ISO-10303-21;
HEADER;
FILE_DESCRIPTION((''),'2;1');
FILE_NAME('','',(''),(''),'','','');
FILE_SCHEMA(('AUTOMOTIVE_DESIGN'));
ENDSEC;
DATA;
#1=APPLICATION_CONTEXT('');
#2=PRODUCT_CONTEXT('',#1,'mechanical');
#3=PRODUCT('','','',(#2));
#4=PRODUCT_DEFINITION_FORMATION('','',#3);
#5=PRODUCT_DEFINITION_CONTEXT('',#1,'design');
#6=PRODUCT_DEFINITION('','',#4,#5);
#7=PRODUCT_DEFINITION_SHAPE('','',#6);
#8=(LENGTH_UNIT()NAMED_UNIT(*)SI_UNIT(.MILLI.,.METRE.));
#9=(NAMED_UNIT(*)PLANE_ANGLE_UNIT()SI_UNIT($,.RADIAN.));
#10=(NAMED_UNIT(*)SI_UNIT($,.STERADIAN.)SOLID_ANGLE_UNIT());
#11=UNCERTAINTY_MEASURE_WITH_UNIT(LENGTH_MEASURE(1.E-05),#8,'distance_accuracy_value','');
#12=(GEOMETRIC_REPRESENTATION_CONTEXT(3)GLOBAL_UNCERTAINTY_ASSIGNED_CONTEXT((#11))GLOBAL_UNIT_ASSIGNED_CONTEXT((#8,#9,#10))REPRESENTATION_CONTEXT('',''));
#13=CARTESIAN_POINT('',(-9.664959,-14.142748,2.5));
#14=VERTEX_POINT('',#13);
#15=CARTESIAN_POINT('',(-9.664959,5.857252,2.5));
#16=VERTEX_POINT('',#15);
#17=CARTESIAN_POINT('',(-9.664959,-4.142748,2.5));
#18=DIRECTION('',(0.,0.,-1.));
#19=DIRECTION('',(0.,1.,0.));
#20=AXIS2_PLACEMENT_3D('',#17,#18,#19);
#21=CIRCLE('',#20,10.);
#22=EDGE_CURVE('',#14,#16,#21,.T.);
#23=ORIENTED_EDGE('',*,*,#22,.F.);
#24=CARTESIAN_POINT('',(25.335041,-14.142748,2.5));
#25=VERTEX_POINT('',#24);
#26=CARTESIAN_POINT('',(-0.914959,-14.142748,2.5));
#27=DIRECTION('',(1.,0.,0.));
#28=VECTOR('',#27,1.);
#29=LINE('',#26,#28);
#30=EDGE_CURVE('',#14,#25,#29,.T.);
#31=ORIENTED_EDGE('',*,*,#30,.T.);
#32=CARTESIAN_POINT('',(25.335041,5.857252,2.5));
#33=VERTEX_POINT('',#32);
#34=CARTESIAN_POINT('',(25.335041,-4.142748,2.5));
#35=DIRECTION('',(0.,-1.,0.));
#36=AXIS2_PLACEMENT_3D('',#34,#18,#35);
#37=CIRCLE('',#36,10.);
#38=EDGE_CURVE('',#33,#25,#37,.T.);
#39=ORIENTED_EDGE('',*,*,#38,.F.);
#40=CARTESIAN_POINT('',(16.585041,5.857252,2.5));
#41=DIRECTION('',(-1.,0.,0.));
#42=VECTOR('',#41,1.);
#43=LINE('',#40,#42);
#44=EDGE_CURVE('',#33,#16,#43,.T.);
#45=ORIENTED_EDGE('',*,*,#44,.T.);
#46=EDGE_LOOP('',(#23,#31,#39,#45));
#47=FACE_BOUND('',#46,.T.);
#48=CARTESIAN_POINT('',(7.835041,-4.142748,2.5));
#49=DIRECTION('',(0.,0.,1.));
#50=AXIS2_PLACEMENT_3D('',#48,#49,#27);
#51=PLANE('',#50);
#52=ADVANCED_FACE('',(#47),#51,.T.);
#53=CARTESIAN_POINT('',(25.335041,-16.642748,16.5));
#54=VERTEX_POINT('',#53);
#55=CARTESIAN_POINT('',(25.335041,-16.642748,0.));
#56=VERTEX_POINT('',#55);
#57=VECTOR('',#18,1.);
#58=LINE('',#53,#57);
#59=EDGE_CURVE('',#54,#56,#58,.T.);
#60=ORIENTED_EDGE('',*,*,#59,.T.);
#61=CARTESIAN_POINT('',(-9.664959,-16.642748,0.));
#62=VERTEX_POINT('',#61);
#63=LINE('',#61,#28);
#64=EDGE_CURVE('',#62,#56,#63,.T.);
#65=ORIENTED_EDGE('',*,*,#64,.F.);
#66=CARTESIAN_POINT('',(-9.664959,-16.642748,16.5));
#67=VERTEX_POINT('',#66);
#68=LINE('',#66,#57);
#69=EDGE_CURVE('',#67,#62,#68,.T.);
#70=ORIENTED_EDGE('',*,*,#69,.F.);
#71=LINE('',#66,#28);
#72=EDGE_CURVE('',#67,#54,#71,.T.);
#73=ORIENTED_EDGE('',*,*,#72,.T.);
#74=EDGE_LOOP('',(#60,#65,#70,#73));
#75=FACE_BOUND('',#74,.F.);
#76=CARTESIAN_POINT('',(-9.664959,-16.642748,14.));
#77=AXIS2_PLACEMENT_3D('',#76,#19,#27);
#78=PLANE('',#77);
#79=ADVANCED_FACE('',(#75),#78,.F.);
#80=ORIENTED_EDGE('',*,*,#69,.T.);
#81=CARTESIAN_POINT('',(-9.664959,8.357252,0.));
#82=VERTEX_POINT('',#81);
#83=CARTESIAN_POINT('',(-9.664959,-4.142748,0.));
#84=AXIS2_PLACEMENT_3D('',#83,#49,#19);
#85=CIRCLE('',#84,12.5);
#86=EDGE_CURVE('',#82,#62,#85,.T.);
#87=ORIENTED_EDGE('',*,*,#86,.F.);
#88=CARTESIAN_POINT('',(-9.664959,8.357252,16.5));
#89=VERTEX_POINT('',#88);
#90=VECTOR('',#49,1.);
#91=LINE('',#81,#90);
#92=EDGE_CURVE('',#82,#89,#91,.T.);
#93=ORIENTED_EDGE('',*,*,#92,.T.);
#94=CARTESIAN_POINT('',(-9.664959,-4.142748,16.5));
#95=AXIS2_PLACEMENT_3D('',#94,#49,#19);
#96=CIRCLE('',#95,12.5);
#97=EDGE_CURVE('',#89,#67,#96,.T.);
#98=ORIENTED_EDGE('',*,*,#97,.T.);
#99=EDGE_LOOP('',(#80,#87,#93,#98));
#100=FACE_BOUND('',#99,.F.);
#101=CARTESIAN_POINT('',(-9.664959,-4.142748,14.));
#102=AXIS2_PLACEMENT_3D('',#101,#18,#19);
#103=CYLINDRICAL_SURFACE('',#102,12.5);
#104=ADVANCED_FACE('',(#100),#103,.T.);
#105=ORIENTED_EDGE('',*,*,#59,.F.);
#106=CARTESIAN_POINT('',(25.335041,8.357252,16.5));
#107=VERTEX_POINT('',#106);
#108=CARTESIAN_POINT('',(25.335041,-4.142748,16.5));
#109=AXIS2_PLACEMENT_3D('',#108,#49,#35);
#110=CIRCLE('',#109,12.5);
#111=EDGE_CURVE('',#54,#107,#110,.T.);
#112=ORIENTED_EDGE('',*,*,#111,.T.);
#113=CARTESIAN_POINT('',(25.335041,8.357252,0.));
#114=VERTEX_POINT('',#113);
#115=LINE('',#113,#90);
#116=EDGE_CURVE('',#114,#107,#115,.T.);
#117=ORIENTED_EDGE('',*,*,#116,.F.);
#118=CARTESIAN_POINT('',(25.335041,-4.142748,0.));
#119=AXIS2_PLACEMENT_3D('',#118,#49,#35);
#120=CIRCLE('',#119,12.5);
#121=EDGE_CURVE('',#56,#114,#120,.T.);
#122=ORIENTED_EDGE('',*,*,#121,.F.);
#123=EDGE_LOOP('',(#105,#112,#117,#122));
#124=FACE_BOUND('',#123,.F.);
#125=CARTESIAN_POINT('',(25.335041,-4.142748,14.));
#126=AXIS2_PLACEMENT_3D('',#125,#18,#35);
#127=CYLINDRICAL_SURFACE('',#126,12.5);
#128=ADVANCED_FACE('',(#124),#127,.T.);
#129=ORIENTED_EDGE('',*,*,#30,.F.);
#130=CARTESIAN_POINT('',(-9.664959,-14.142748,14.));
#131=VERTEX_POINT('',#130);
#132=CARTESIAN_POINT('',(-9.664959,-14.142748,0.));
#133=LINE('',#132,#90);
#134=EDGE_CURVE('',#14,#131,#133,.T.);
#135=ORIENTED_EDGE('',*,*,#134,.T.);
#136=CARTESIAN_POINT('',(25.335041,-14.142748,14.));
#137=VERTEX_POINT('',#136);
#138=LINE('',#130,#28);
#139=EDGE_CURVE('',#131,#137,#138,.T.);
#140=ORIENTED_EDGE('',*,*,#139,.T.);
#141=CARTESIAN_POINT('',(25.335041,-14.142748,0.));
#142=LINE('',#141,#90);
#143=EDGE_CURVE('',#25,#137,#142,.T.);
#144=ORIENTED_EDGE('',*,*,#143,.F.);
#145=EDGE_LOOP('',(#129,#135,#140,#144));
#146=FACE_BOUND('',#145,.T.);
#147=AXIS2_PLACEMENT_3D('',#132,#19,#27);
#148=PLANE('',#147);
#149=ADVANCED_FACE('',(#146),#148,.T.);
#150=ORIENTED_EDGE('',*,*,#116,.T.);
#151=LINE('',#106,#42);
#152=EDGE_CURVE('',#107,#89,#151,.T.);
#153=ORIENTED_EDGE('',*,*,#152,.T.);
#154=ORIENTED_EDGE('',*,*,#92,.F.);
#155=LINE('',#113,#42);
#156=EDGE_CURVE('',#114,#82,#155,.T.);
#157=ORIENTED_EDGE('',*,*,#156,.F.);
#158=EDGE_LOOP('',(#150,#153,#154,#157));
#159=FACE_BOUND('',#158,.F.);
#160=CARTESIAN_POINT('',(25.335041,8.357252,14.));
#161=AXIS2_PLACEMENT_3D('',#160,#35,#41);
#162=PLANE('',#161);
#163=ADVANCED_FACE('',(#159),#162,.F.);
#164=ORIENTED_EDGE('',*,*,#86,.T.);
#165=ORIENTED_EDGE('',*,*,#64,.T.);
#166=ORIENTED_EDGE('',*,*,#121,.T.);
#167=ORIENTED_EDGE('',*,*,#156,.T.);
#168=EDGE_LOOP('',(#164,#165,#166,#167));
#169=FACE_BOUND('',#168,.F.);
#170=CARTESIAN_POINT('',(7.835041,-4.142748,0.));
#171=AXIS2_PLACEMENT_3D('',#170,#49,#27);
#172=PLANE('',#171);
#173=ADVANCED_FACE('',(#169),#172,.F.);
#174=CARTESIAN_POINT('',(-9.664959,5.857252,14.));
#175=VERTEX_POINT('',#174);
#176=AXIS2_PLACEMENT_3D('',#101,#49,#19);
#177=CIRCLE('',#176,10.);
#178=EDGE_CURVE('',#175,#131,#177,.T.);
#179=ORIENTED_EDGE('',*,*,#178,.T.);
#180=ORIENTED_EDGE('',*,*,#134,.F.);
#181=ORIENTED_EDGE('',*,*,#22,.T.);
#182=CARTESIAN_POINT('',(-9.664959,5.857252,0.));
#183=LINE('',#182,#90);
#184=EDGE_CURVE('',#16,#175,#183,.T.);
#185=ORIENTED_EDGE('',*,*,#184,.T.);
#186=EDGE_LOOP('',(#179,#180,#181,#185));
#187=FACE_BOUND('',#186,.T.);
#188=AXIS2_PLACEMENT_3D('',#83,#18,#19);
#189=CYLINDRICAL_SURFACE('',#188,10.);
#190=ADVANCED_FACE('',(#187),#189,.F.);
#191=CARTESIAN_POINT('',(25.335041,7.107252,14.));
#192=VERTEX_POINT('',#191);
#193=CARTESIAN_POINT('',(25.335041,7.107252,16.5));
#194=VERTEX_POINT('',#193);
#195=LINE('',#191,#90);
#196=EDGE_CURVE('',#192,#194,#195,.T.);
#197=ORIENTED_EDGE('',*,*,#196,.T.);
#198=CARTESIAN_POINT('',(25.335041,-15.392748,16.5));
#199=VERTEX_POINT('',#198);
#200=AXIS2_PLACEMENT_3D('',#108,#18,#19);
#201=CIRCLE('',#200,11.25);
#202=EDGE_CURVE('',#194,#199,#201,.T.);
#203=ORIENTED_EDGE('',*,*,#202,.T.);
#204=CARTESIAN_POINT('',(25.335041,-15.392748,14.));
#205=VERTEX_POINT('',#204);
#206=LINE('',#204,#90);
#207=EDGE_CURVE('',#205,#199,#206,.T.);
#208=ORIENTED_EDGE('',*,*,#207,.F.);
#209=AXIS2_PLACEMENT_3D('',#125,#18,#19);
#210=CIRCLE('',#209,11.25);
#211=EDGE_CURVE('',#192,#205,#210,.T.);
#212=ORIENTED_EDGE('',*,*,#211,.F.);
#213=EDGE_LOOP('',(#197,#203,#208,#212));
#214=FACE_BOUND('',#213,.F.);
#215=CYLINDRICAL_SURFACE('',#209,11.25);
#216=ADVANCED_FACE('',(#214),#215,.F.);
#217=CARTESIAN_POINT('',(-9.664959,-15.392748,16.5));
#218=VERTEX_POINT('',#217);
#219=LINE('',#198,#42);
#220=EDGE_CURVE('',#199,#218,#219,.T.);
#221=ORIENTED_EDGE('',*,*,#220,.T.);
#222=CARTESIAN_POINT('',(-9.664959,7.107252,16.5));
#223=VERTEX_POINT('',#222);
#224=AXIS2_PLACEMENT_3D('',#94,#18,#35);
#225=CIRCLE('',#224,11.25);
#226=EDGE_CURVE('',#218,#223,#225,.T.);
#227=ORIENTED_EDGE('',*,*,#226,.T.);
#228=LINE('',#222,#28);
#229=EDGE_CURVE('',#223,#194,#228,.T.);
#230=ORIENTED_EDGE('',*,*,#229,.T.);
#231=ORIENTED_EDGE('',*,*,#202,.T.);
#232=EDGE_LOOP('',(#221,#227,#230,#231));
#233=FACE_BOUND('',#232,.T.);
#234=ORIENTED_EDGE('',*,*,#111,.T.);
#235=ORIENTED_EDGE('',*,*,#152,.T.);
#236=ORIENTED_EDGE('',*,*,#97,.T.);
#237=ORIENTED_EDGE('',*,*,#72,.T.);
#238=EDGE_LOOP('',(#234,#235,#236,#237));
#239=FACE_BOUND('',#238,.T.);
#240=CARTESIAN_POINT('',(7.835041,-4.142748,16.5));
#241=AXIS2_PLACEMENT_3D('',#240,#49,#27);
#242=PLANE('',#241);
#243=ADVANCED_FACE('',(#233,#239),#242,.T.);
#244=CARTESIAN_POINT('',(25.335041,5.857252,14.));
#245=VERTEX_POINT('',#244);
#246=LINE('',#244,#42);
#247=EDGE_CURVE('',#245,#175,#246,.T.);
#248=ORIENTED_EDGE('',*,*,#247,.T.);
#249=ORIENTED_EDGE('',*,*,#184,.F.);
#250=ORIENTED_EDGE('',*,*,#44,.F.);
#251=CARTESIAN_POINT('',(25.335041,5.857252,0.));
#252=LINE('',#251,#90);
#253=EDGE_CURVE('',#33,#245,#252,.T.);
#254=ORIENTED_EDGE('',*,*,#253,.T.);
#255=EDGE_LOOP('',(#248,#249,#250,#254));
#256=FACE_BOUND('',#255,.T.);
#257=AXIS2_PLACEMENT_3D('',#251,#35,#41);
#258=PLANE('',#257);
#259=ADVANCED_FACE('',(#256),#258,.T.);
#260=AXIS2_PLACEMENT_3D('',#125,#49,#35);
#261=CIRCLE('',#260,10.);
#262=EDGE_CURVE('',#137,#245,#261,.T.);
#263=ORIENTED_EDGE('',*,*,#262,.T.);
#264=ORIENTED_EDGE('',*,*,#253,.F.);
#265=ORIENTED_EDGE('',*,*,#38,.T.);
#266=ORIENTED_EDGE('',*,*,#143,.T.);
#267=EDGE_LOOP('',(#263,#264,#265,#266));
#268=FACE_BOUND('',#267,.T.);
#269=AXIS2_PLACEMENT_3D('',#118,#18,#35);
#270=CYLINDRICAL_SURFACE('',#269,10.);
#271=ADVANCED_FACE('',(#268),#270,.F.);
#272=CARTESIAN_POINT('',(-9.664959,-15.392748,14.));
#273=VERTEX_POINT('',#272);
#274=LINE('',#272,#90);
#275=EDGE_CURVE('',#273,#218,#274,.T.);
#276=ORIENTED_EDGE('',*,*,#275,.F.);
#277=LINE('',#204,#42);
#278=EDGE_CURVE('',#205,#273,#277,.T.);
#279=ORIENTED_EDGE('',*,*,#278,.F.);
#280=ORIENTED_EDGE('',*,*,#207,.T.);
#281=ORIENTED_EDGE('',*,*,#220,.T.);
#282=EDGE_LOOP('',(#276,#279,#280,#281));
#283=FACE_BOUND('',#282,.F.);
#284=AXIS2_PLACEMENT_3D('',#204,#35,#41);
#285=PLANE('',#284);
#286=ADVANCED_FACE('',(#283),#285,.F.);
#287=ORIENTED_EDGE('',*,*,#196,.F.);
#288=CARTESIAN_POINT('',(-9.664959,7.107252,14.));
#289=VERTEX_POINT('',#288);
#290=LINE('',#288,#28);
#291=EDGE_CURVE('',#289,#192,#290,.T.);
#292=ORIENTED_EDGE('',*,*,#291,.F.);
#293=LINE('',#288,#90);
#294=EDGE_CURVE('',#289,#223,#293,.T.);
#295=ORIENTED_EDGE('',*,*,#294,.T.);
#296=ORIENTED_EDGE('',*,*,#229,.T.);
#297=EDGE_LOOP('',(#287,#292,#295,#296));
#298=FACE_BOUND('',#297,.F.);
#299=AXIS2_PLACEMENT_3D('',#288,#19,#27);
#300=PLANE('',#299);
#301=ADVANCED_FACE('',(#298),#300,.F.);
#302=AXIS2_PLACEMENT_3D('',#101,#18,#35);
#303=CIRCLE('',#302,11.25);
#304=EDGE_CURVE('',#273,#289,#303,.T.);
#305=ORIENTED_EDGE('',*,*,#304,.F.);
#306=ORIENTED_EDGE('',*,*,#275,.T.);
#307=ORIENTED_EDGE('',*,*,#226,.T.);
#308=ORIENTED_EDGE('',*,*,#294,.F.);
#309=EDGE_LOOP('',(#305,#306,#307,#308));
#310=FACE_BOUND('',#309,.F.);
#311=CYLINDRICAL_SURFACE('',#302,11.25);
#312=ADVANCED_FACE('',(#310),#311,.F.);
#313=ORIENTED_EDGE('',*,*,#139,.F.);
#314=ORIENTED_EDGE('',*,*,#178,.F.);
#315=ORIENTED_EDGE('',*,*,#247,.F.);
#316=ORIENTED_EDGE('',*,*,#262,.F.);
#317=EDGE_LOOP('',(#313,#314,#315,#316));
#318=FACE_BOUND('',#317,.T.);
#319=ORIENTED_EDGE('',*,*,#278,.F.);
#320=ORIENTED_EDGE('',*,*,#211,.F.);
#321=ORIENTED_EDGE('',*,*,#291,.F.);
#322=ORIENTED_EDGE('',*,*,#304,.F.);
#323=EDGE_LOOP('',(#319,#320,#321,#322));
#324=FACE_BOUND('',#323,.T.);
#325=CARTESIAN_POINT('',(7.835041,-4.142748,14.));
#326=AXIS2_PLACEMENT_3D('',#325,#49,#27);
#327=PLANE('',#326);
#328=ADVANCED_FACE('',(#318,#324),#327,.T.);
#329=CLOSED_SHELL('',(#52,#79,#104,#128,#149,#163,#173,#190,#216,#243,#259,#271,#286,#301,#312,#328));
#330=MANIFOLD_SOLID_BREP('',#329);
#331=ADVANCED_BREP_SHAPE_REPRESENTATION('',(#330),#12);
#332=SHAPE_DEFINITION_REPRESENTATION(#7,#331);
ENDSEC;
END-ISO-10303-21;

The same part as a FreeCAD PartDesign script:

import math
import FreeCAD as App
import Part
import Sketcher
from FreeCAD import Vector
Q = App.Units.Quantity


def faces_at(feature, points):
    """Names of the faces that lie closest to the given points."""
    faces = feature.Shape.Faces
    near = lambda p: min(range(len(faces)), key=lambda i: faces[i].distToShape(Part.Vertex(*p))[0])
    return sorted({f"Face{near(p) + 1}" for p in points})

doc = App.newDocument("Part")
body = doc.addObject("PartDesign::Body", "Body")

# Sketch on XY plane
sketch1 = body.newObject("Sketcher::SketchObject", "Sketch")
sketch1.AttachmentSupport = (doc.getObject("XY_Plane"), [""])
sketch1.MapMode = "FlatFace"
sketch1.addGeometry([
    Part.ArcOfCircle(Part.Circle(Vector(-9.664959, -4.142748, 0), Vector(0, 0, 1), 12.5), math.radians(90), math.radians(270)),
    Part.LineSegment(Vector(-9.664959, -16.642748, 0), Vector(25.335041, -16.642748, 0)),
    Part.ArcOfCircle(Part.Circle(Vector(25.335041, -4.142748, 0), Vector(0, 0, 1), 12.5), math.radians(-90), math.radians(90)),
    Part.LineSegment(Vector(25.335041, 8.357252, 0), Vector(-9.664959, 8.357252, 0)),
], False)
sketch1.addConstraint([
    Sketcher.Constraint("Tangent", 0, 2, 1, 1),
    Sketcher.Constraint("Tangent", 1, 2, 2, 1),
    Sketcher.Constraint("Tangent", 2, 2, 3, 1),
    Sketcher.Constraint("Tangent", 3, 2, 0, 1),
    Sketcher.Constraint("Horizontal", 1),
    Sketcher.Constraint("Horizontal", 3),
    Sketcher.Constraint("Radius", 0, Q("12.5 mm")),
    Sketcher.Constraint("DistanceX", 1, 1, 1, 2, Q("35 mm")),
    Sketcher.Constraint("DistanceX", 0, 3, -1, 1, Q("9.664959 mm")),
    Sketcher.Constraint("DistanceY", 0, 3, -1, 1, Q("4.142748 mm")),
])
pad1 = body.newObject("PartDesign::Pad", "Pad")
pad1.Profile = sketch1
pad1.Length = 14
doc.recompute()

thickness = body.newObject("PartDesign::Thickness", "Thickness")
thickness.Base = (pad1, faces_at(pad1, [(7.835, -4.143, 14)]))
thickness.Value = 2.5
thickness.Reversed = True
thickness.Join = "Arc"

# Sketch on XY plane
sketch2 = body.newObject("Sketcher::SketchObject", "Sketch001")
sketch2.AttachmentSupport = (doc.getObject("XY_Plane"), [""])
sketch2.MapMode = "FlatFace"
sketch2.AttachmentOffset = App.Placement(Vector(0, 0, 14), App.Rotation())
sketch2.addGeometry([
    Part.ArcOfCircle(Part.Circle(Vector(25.335041, -4.142748, 0), Vector(0, 0, 1), 12.5), math.radians(-90), math.radians(90)),  # 0
    Part.LineSegment(Vector(25.335041, 8.357252, 0), Vector(-9.664959, 8.357252, 0)),  # 1
    Part.ArcOfCircle(Part.Circle(Vector(-9.664959, -4.142748, 0), Vector(0, 0, 1), 12.5), math.radians(90), math.radians(270)),  # 2
    Part.LineSegment(Vector(-9.664959, -16.642748, 0), Vector(25.335041, -16.642748, 0)),  # 3
    Part.ArcOfCircle(Part.Circle(Vector(-9.664959, -4.142748, 0), Vector(0, 0, 1), 11.25), math.radians(90), math.radians(270)),  # 4
    Part.LineSegment(Vector(-9.664959, 7.107252, 0), Vector(25.335041, 7.107252, 0)),  # 5
    Part.ArcOfCircle(Part.Circle(Vector(25.335041, -4.142748, 0), Vector(0, 0, 1), 11.25), math.radians(-90), math.radians(90)),  # 6
    Part.LineSegment(Vector(25.335041, -15.392748, 0), Vector(-9.664959, -15.392748, 0)),  # 7
], False)
sketch2.addConstraint([
    Sketcher.Constraint("Tangent", 0, 2, 1, 1),
    Sketcher.Constraint("Tangent", 1, 2, 2, 1),
    Sketcher.Constraint("Tangent", 2, 2, 3, 1),
    Sketcher.Constraint("Tangent", 3, 2, 0, 1),
    Sketcher.Constraint("Tangent", 4, 1, 5, 1),
    Sketcher.Constraint("Tangent", 5, 2, 6, 2),
    Sketcher.Constraint("Tangent", 6, 1, 7, 1),
    Sketcher.Constraint("Tangent", 7, 2, 4, 2),
    Sketcher.Constraint("Horizontal", 1),
    Sketcher.Constraint("Horizontal", 3),
    Sketcher.Constraint("Horizontal", 5),
    Sketcher.Constraint("Horizontal", 7),
    Sketcher.Constraint("Coincident", 4, 3, 2, 3),
    Sketcher.Constraint("Vertical", 6, 3, 0, 2),
    Sketcher.Constraint("Radius", 0, Q("12.5 mm")),
    Sketcher.Constraint("DistanceX", 1, 2, 1, 1, Q("35 mm")),
    Sketcher.Constraint("Radius", 4, Q("11.25 mm")),
    Sketcher.Constraint("DistanceX", -1, 1, 0, 3, Q("25.335041 mm")),
    Sketcher.Constraint("DistanceY", 0, 3, -1, 1, Q("4.142748 mm")),
])
pad2 = body.newObject("PartDesign::Pad", "Pad001")
pad2.Profile = sketch2
pad2.Length = 2.5

doc.recompute()
